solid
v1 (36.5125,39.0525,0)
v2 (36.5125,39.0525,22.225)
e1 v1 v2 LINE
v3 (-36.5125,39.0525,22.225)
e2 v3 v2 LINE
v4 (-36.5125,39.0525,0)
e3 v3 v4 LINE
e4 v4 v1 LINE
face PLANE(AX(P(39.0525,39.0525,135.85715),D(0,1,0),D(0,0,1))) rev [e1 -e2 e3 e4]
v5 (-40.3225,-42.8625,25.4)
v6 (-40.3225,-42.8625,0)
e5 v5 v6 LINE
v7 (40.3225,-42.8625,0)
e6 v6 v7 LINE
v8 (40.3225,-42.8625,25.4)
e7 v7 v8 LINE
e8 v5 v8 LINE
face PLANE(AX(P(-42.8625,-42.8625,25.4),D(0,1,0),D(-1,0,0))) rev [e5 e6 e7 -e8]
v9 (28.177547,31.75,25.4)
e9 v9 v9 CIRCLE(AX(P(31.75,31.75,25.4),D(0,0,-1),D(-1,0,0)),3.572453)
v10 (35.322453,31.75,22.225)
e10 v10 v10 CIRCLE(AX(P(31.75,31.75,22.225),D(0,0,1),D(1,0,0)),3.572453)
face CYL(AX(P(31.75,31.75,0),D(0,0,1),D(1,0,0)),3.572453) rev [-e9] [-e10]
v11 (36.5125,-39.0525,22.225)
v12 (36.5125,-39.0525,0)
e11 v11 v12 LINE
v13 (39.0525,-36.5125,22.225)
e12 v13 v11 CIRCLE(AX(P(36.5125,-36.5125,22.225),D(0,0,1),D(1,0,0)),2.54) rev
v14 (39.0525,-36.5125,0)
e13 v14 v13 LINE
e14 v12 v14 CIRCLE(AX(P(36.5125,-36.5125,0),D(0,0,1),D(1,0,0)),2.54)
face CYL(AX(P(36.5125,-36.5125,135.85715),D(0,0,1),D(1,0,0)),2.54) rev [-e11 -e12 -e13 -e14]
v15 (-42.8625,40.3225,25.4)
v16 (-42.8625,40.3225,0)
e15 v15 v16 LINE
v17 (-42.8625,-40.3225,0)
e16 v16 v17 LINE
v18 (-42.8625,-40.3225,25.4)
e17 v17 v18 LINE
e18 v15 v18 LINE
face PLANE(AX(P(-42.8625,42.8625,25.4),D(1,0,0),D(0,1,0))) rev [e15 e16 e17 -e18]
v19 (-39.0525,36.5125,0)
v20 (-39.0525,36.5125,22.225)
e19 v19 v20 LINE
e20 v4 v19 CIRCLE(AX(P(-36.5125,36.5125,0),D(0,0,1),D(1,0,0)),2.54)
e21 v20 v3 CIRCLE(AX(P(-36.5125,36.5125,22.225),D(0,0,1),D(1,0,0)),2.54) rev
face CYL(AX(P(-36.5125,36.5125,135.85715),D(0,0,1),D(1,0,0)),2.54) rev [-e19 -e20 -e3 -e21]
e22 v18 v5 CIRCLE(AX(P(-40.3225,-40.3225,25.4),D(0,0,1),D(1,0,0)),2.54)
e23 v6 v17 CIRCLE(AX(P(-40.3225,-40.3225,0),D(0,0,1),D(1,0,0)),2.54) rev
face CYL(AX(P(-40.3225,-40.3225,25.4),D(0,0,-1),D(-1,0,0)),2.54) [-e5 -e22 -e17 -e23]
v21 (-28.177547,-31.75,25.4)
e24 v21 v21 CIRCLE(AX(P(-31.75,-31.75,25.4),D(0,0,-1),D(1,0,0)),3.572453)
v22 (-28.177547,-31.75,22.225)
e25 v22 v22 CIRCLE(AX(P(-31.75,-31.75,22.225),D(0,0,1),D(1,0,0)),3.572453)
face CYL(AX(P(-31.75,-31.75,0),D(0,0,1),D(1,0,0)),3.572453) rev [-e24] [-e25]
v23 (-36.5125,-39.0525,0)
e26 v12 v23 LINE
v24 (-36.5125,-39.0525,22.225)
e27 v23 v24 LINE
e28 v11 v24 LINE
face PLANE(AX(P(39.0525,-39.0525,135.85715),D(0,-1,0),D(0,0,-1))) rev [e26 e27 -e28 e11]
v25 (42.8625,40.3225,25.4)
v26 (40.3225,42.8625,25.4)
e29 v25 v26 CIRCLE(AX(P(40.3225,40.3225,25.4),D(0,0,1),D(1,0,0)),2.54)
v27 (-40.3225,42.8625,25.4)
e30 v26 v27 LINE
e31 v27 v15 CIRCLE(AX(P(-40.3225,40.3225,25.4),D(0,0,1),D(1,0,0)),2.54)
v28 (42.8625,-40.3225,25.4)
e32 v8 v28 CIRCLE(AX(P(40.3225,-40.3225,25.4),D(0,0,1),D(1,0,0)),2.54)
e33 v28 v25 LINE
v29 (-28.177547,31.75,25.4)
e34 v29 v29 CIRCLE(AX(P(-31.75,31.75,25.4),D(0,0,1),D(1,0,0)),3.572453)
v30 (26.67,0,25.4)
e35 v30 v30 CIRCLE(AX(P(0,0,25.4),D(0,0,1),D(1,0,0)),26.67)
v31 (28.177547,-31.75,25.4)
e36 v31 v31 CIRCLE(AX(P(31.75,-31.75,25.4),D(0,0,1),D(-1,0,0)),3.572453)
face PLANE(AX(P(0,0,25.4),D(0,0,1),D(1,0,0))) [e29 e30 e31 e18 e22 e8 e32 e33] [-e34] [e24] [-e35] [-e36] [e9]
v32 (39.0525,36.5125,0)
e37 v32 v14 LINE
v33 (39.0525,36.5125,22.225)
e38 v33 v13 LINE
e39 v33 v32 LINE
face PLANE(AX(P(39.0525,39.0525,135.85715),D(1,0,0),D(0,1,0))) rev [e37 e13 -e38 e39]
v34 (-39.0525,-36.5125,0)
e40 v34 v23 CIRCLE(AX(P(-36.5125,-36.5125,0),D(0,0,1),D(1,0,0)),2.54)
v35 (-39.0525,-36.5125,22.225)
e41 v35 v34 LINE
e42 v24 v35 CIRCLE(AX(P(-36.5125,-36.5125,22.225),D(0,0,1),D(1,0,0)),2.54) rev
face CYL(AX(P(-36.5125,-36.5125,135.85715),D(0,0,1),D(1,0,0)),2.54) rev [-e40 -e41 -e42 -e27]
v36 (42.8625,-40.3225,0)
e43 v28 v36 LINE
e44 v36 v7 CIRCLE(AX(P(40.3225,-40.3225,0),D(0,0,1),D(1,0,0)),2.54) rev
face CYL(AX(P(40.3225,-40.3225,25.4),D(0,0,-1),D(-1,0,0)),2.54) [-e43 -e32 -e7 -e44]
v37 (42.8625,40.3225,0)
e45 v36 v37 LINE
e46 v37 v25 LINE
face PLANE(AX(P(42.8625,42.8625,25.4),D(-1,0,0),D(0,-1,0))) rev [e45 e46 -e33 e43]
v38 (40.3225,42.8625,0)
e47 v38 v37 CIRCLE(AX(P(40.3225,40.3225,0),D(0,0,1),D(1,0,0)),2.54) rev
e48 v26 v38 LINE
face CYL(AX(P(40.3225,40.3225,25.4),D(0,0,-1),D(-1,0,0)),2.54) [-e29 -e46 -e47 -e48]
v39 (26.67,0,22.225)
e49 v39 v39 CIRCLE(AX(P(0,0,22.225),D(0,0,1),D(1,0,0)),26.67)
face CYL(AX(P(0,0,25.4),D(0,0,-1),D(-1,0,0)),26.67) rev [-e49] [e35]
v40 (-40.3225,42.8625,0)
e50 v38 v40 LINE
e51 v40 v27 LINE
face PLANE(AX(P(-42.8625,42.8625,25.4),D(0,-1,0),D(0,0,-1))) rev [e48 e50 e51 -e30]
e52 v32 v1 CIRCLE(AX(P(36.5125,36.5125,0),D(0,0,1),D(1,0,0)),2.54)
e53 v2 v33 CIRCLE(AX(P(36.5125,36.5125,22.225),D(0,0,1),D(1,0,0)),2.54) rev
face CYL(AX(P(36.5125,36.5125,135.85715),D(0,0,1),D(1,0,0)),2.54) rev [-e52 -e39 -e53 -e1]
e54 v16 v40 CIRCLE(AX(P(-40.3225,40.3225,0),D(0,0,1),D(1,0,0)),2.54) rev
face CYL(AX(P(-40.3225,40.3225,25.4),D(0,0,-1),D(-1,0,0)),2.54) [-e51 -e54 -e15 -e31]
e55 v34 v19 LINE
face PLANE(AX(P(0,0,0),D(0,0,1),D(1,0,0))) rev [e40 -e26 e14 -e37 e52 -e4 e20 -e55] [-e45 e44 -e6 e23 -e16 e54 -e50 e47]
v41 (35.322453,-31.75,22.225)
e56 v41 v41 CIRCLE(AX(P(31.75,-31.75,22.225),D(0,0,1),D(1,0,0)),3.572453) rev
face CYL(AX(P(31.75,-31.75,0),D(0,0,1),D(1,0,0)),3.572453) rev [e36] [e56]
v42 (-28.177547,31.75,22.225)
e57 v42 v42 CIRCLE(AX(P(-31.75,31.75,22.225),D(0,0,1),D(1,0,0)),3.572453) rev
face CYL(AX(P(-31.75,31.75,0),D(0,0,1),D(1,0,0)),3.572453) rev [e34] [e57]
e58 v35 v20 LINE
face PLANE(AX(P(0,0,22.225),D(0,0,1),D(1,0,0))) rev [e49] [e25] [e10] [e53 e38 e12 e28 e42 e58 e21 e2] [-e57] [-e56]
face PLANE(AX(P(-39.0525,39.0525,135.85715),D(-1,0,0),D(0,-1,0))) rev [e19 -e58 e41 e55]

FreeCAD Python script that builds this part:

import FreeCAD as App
import Part
import Sketcher

V = App.Vector
Q = App.Units.Quantity


def edges_at(feature, points):
    """Names of the edges that pass closest to the given points."""
    edges = feature.Shape.Edges
    near = lambda p: min(range(len(edges)), key=lambda i: edges[i].distToShape(Part.Vertex(*p))[0])
    return sorted({f"Edge{near(p) + 1}" for p in points})

doc = App.newDocument("Part")
body = doc.addObject("PartDesign::Body", "Body")

# Sketch on XY plane
sketch1 = body.newObject("Sketcher::SketchObject", "Sketch")
sketch1.AttachmentSupport = (doc.getObject("XY_Plane"), [""])
sketch1.MapMode = "FlatFace"
sketch1.addGeometry([
    Part.LineSegment(V(-42.8625, 42.8625, 0), V(-42.8625, -42.8625, 0)),  # 0
    Part.LineSegment(V(-42.8625, -42.8625, 0), V(42.8625, -42.8625, 0)),  # 1
    Part.LineSegment(V(42.8625, -42.8625, 0), V(42.8625, 42.8625, 0)),  # 2
    Part.LineSegment(V(42.8625, 42.8625, 0), V(-42.8625, 42.8625, 0)),  # 3
    Part.Circle(V(0, 0, 0), V(0, 0, 1), 26.67),  # 4
], False)
sketch1.addConstraint([
    Sketcher.Constraint("Coincident", 0, 2, 1, 1),
    Sketcher.Constraint("Coincident", 1, 2, 2, 1),
    Sketcher.Constraint("Coincident", 2, 2, 3, 1),
    Sketcher.Constraint("Coincident", 3, 2, 0, 1),
    Sketcher.Constraint("Vertical", 0),
    Sketcher.Constraint("Horizontal", 1),
    Sketcher.Constraint("Vertical", 2),
    Sketcher.Constraint("Horizontal", 3),
    Sketcher.Constraint("Coincident", 4, 3, -1, 1),
    Sketcher.Constraint("Symmetric", 0, 2, 2, 2, -1, 1),
    Sketcher.Constraint("Equal", 3, 0),
    Sketcher.Constraint("Diameter", 4, Q("2.1 in")),
    Sketcher.Constraint("DistanceX", 1, 1, 1, 2, Q("3.375 in")),
])
pad1 = body.newObject("PartDesign::Pad", "Pad")
pad1.Profile = sketch1
pad1.Length = Q("1 in")

# Sketch on XY plane
sketch2 = body.newObject("Sketcher::SketchObject", "Sketch001")
sketch2.AttachmentSupport = (doc.getObject("XY_Plane"), [""])
sketch2.MapMode = "FlatFace"
sketch2.AttachmentOffset = App.Placement(V(0, 0, 1 * 25.4), App.Rotation())
sketch2.addGeometry(Part.Circle(V(-31.75, 31.75, 0), V(0, 0, 1), 3.572453), False)
sketch2.addConstraint([
    Sketcher.Constraint("DistanceX", 0, 3, -1, 1, Q("1.25 in")),
    Sketcher.Constraint("DistanceY", -1, 1, 0, 3, Q("1.25 in")),
    Sketcher.Constraint("Diameter", 0, 7.144907),
])
pocket1 = body.newObject("PartDesign::Pocket", "Pocket")
pocket1.Profile = sketch2
pocket1.Type = "ThroughAll"
doc.recompute()

mirrored = body.newObject("PartDesign::Mirrored", "Mirrored")
mirrored.Originals = [pocket1]
mirrored.MirrorPlane = (doc.getObject("YZ_Plane"), [""])
body.Tip = mirrored
doc.recompute()

mirrored2 = body.newObject("PartDesign::Mirrored", "Mirrored001")
mirrored2.Originals = [pocket1]
mirrored2.MirrorPlane = (doc.getObject("XZ_Plane"), [""])
body.Tip = mirrored2

# Sketch on XY plane
sketch3 = body.newObject("Sketcher::SketchObject", "Sketch002")
sketch3.AttachmentSupport = (doc.getObject("XY_Plane"), [""])
sketch3.MapMode = "FlatFace"
sketch3.AttachmentOffset = App.Placement(V(0, 0, 1 * 25.4), App.Rotation())
sketch3.addGeometry(Part.Circle(V(31.75, -31.75, 0), V(0, 0, 1), 3.572453), False)
sketch3.addConstraint([
    Sketcher.Constraint("DistanceX", -1, 1, 0, 3, Q("1.25 in")),
    Sketcher.Constraint("DistanceY", 0, 3, -1, 1, Q("1.25 in")),
    Sketcher.Constraint("Diameter", 0, 7.144907),
])
pocket2 = body.newObject("PartDesign::Pocket", "Pocket001")
pocket2.Profile = sketch3
pocket2.Type = "ThroughAll"

# Sketch on XY plane
sketch4 = body.newObject("Sketcher::SketchObject", "Sketch003")
sketch4.AttachmentSupport = (doc.getObject("XY_Plane"), [""])
sketch4.MapMode = "FlatFace"
sketch4.addGeometry([
    Part.LineSegment(V(39.0525, 39.0525, 0), V(39.0525, -39.0525, 0)),
    Part.LineSegment(V(39.0525, -39.0525, 0), V(-39.0525, -39.0525, 0)),
    Part.LineSegment(V(-39.0525, -39.0525, 0), V(-39.0525, 39.0525, 0)),
    Part.LineSegment(V(-39.0525, 39.0525, 0), V(39.0525, 39.0525, 0)),
], False)
sketch4.addConstraint([
    Sketcher.Constraint("Coincident", 0, 2, 1, 1),
    Sketcher.Constraint("Coincident", 1, 2, 2, 1),
    Sketcher.Constraint("Coincident", 2, 2, 3, 1),
    Sketcher.Constraint("Coincident", 3, 2, 0, 1),
    Sketcher.Constraint("Vertical", 0),
    Sketcher.Constraint("Horizontal", 1),
    Sketcher.Constraint("Vertical", 2),
    Sketcher.Constraint("Horizontal", 3),
    Sketcher.Constraint("Symmetric", 0, 2, 2, 2, -1, 1),
    Sketcher.Constraint("Equal", 3, 0),
    Sketcher.Constraint("DistanceX", 1, 2, 1, 1, Q("3.075 in")),
])
pocket3 = body.newObject("PartDesign::Pocket", "Pocket002")
pocket3.Profile = sketch4
pocket3.Length = Q("0.875 in")
pocket3.Reversed = True
doc.recompute()

fillet = body.newObject("PartDesign::Fillet", "Fillet")
fillet.Base = (pocket3, edges_at(pocket3, [
    (-39.053, -39.053, 11.113),
    (-39.053, 39.053, 11.113),
    (39.053, 39.053, 11.113),
    (39.053, -39.053, 11.113),
    (-42.862, 42.862, 12.7),
    (42.862, 42.862, 12.7),
    (42.862, -42.862, 12.7),
    (-42.862, -42.862, 12.7),
]))
fillet.Radius = Q("0.1 in")

doc.recompute()
